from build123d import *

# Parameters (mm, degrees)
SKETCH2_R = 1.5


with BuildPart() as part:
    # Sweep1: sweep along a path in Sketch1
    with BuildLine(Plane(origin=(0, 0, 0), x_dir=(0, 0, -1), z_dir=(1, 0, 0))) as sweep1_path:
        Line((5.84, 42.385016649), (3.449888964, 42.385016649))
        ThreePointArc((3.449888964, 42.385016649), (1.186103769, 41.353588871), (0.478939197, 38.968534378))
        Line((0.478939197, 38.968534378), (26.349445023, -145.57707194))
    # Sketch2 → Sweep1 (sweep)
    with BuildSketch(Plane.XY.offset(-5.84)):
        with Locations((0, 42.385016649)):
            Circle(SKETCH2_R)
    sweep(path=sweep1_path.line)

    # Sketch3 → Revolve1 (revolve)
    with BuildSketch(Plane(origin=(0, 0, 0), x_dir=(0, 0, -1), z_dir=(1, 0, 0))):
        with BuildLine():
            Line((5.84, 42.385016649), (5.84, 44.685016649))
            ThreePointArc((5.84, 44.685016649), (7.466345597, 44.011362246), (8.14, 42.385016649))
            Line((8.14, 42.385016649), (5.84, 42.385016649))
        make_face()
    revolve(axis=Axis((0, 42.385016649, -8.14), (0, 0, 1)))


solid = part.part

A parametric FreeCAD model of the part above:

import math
import FreeCAD as App
import Part
import Sketcher
from FreeCAD import Vector
Q = App.Units.Quantity

doc = App.newDocument("Part")
body = doc.addObject("PartDesign::Body", "Body")

sketch1 = doc.addObject("Sketcher::SketchObject", "Sketch")
body.addObject(sketch1)
sketch1.AttachmentSupport = (doc.XY_Plane, [""])
sketch1.MapMode = "FlatFace"
sketch1.AttachmentOffset = App.Placement(Vector(0, 0, -5.84), App.Rotation())
sketch1.addGeometry(Part.Circle(Vector(0, 42.4, 0), Vector(0, 0, 1), 1.5), False)
sketch1.addConstraint([
    Sketcher.Constraint("PointOnObject", 0, 3, -2),
    Sketcher.Constraint("Diameter", 0, 3.0),
    Sketcher.Constraint("DistanceY", -1, 1, 0, 3, 42.385017),
])

sketch2 = doc.addObject("Sketcher::SketchObject", "Sketch001")
body.addObject(sketch2)
sketch2.AttachmentSupport = (doc.YZ_Plane, [""])
sketch2.MapMode = "FlatFace"
sketch2.addGeometry([
    Part.LineSegment(Vector(42.4, -5.8, 0), Vector(42.4, -3.4, 0)),
    Part.ArcOfCircle(Part.Circle(Vector(39.4, -3.4, 0), Vector(0, 0, 1), 3), math.radians(0), math.radians(98)),
    Part.LineSegment(Vector(39, -0.5, 0), Vector(-145.6, -26.3, 0)),
], False)
sketch2.addConstraint([
    Sketcher.Constraint("Tangent", 0, 2, 1, 1),
    Sketcher.Constraint("Tangent", 1, 2, 2, 1),
    Sketcher.Constraint("Vertical", 0),
    Sketcher.Constraint("Radius", 1, 3.0),
    Sketcher.Constraint("Angle", 2, Q("-172.02 deg")),
    Sketcher.Constraint("DistanceY", 0, 1, -1, 1, 5.84),
    Sketcher.Constraint("DistanceY", 0, 1, 0, 2, 2.390111),
    Sketcher.Constraint("Distance", 2, 186.350111),
    Sketcher.Constraint("DistanceX", 2, 2, -1, 1, 145.577072),
])
doc.recompute()

additivepipe = doc.addObject("PartDesign::AdditivePipe", "AdditivePipe")
body.addObject(additivepipe)
additivepipe.Profile = sketch1
additivepipe.Spine = (sketch2, ["Edge1", "Edge2", "Edge3"])

sketch3 = doc.addObject("Sketcher::SketchObject", "Sketch002")
body.addObject(sketch3)
sketch3.AttachmentSupport = (doc.YZ_Plane, [""])
sketch3.MapMode = "FlatFace"
sketch3.addGeometry([
    Part.LineSegment(Vector(44.7, -5.8, 0), Vector(42.4, -5.8, 0)),
    Part.LineSegment(Vector(42.4, -5.8, 0), Vector(42.4, -8.1, 0)),
    Part.ArcOfCircle(Part.Circle(Vector(42.4, -5.8, 0), Vector(0, 0, 1), 2.3), math.radians(-90), math.radians(0)),
], False)
sketch3.addGeometry(Part.LineSegment(Vector(42.4, -8.1, 0), Vector(42.4, -5.8, 0)), True)
sketch3.addConstraint([
    Sketcher.Constraint("Coincident", 0, 2, 1, 1),
    Sketcher.Constraint("Coincident", 1, 2, 2, 1),
    Sketcher.Constraint("Coincident", 2, 2, 0, 1),
    Sketcher.Constraint("Horizontal", 0),
    Sketcher.Constraint("Vertical", 1),
    Sketcher.Constraint("Vertical", 3),
    Sketcher.Constraint("Coincident", 0, 2, 2, 3),
    Sketcher.Constraint("Coincident", 3, 1, 1, 2),
    Sketcher.Constraint("Horizontal", 2, 2, 3, 2),
    Sketcher.Constraint("Radius", 2, 2.3),
    Sketcher.Constraint("DistanceY", 2, 3, -1, 1, 5.84),
    Sketcher.Constraint("DistanceX", -1, 1, 2, 3, 42.385017),
])
revolution = doc.addObject("PartDesign::Revolution", "Revolution")
body.addObject(revolution)
revolution.Profile = sketch3
revolution.ReferenceAxis = (sketch3, ["Axis0"])
revolution.Angle = 360

doc.recompute()
